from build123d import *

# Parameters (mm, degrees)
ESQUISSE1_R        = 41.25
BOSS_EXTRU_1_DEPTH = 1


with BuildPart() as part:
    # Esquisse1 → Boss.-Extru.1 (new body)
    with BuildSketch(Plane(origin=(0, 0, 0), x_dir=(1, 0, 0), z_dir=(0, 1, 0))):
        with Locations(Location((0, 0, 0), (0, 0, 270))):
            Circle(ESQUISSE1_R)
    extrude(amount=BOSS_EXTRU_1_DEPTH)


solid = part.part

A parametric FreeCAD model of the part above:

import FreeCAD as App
import Part
import Sketcher
Q = App.Units.Quantity

doc = App.newDocument("Part")
body = doc.addObject("PartDesign::Body", "Body")

# Sketch on XZ plane
sketch1 = body.newObject("Sketcher::SketchObject", "Sketch")
sketch1.AttachmentSupport = (doc.getObject("XZ_Plane"), [""])
sketch1.MapMode = "FlatFace"
sketch1.addGeometry(Part.Circle(App.Vector(0, 0, 0), App.Vector(0, 0, 1), 41.25), False)
sketch1.addConstraint([
    Sketcher.Constraint("Coincident", 0, 3, -1, 1),
    Sketcher.Constraint("Diameter", 0, Q("82.5 mm")),
])
pad1 = body.newObject("PartDesign::Pad", "Pad")
pad1.Profile = sketch1
pad1.Length = 1
pad1.Reversed = True

doc.recompute()
